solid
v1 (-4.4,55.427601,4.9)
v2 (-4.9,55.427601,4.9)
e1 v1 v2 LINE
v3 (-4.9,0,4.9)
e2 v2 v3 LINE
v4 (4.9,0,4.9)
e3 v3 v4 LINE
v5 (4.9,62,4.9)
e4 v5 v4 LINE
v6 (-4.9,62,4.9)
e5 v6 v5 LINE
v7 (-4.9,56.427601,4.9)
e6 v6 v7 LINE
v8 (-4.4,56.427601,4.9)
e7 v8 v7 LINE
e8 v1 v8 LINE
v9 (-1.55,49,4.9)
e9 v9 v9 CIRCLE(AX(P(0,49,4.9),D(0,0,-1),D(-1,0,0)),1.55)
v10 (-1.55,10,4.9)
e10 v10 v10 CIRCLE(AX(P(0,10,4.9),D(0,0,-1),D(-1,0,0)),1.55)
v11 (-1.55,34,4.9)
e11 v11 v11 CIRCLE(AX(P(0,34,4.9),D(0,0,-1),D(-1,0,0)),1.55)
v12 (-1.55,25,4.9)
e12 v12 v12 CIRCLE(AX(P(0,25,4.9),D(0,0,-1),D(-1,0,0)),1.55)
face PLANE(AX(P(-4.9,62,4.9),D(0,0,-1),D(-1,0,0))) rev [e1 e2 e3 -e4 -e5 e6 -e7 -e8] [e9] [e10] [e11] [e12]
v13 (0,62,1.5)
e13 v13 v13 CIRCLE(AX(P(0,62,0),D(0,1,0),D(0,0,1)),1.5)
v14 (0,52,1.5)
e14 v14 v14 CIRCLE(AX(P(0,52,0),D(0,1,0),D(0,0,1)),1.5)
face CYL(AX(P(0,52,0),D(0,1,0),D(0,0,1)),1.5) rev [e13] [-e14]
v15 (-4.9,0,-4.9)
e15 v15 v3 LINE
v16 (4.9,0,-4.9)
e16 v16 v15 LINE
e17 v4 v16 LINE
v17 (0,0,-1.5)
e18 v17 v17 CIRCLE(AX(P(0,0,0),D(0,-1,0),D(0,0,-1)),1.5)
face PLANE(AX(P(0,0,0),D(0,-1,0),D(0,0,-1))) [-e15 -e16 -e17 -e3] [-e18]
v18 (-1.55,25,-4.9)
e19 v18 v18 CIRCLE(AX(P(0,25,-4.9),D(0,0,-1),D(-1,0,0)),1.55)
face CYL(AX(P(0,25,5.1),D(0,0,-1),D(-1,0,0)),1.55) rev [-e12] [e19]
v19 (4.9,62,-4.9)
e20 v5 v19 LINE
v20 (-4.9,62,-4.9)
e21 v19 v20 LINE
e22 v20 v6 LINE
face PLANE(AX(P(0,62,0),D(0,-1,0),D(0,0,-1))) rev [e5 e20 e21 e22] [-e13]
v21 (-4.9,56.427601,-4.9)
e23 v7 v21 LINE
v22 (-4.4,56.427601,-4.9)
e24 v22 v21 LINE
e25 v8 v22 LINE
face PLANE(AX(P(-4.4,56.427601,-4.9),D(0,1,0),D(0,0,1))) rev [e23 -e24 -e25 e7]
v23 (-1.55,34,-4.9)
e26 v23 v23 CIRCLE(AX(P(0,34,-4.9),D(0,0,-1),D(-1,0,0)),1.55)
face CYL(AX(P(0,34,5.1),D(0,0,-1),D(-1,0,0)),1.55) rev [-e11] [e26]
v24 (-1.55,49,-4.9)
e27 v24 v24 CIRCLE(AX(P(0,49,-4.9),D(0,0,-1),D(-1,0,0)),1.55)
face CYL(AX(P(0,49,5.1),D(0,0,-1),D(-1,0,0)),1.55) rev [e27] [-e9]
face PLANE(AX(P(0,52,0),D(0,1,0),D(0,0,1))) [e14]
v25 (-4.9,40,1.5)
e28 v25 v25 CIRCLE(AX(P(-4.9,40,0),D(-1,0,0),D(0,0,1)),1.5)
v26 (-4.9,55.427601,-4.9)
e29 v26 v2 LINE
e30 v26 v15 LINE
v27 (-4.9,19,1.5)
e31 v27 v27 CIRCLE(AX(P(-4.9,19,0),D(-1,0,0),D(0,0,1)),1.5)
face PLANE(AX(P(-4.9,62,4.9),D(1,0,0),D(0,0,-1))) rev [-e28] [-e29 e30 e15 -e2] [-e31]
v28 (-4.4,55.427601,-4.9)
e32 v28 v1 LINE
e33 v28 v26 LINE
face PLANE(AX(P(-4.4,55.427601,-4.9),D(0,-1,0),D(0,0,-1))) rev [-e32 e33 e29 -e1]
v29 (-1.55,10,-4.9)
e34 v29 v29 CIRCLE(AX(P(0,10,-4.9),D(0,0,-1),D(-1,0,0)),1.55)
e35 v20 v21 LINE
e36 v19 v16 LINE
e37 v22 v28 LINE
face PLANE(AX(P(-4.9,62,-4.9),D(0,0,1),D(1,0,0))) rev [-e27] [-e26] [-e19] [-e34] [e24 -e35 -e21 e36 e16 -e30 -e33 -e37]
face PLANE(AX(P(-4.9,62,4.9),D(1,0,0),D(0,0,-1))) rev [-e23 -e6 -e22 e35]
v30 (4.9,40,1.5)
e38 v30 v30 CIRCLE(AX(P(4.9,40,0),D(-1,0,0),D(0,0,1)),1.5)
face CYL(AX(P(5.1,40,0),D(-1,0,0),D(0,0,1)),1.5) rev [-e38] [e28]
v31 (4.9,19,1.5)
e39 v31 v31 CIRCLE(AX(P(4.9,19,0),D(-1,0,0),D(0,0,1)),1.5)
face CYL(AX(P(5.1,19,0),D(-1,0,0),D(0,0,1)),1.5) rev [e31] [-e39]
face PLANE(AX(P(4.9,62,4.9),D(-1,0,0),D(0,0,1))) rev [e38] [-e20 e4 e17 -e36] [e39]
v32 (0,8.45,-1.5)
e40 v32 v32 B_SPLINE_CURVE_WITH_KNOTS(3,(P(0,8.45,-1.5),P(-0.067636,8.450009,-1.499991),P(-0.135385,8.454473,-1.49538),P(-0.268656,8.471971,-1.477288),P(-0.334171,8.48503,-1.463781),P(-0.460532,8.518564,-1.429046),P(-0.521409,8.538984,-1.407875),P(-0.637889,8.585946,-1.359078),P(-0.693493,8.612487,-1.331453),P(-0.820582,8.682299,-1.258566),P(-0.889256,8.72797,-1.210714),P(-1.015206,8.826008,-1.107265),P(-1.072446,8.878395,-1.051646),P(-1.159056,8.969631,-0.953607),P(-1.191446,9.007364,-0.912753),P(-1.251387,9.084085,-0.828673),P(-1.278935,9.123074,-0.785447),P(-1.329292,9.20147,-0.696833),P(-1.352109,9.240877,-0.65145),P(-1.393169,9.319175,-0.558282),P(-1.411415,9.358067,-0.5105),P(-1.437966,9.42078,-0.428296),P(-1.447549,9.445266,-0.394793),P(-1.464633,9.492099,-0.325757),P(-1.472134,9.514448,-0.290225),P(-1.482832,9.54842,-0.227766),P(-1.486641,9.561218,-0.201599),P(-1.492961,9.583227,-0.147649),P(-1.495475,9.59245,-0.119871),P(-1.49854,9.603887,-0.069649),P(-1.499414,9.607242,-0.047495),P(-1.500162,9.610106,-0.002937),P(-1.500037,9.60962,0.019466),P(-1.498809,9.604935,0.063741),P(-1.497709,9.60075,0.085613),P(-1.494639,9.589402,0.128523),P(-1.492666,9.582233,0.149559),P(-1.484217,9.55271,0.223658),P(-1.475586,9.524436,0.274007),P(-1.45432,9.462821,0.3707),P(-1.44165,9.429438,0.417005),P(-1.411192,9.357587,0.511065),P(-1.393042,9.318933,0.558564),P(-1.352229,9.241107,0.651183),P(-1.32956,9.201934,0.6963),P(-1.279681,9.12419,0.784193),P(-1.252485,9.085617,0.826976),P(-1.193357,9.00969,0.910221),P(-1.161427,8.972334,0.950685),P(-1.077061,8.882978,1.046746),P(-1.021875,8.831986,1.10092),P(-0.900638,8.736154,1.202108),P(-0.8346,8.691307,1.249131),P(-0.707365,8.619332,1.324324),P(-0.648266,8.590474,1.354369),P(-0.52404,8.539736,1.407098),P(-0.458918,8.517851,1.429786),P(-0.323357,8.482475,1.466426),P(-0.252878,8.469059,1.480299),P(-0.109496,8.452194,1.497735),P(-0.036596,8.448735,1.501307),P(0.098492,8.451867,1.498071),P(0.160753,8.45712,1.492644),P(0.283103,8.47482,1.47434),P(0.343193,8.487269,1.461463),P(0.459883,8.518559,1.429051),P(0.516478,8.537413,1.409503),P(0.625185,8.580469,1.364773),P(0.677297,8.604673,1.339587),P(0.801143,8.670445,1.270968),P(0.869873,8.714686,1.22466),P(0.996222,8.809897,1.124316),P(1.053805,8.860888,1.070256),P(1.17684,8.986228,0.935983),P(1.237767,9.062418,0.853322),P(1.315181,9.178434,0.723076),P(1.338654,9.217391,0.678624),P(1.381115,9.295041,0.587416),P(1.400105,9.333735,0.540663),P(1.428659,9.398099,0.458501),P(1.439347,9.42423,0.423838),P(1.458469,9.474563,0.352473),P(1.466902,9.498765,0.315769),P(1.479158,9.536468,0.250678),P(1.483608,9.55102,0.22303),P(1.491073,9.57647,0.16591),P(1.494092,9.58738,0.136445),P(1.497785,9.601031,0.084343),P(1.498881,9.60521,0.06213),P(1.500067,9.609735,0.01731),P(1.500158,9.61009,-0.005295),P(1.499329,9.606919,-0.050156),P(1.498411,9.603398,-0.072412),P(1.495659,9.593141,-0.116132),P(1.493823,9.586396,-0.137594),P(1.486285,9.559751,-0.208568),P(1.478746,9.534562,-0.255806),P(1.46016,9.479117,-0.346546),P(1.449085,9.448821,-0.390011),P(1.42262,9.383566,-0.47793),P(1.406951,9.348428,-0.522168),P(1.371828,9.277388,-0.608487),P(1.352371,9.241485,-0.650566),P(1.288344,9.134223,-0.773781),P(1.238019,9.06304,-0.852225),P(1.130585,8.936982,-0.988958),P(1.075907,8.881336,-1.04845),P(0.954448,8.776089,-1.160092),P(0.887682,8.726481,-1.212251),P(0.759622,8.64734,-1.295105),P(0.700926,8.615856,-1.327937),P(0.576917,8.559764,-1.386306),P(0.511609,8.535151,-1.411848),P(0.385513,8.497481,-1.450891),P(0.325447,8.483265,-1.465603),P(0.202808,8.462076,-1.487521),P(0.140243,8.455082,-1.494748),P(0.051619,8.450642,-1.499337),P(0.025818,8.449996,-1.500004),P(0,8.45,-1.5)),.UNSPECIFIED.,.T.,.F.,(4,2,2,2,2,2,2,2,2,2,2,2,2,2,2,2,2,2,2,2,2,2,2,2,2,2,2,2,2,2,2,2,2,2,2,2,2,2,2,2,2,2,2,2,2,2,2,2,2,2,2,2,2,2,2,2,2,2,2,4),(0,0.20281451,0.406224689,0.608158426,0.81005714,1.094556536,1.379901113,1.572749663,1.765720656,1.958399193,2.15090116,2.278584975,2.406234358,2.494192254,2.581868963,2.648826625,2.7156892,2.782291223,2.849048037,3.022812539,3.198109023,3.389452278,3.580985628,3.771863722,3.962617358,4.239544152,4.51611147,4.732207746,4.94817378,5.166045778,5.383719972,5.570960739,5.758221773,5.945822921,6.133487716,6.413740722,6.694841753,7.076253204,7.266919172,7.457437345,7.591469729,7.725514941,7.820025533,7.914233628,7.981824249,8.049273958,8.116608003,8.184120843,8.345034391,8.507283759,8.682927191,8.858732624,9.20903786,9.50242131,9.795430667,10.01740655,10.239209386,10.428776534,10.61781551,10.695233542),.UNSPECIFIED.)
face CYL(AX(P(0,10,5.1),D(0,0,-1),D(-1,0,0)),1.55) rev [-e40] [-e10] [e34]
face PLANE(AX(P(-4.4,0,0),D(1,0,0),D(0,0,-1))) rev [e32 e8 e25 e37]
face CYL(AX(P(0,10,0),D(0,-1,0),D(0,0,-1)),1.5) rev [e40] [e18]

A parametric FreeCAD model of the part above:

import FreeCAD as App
import Part
import Sketcher
Q = App.Units.Quantity

doc = App.newDocument("Part")
body = doc.addObject("PartDesign::Body", "Body")

sketch1 = doc.addObject("Sketcher::SketchObject", "Sketch")
body.addObject(sketch1)
sketch1.AttachmentSupport = (doc.XZ_Plane, [""])
sketch1.MapMode = "FlatFace"
sketch1.addGeometry([
    Part.LineSegment(App.Vector(-5, -5, 0), App.Vector(-5, 5, 0)),
    Part.LineSegment(App.Vector(-5, 5, 0), App.Vector(5, 5, 0)),
    Part.LineSegment(App.Vector(5, 5, 0), App.Vector(5, -5, 0)),
    Part.LineSegment(App.Vector(5, -5, 0), App.Vector(-5, -5, 0)),
], False)
sketch1.addConstraint([
    Sketcher.Constraint("Coincident", 0, 2, 1, 1),
    Sketcher.Constraint("Coincident", 1, 2, 2, 1),
    Sketcher.Constraint("Coincident", 2, 2, 3, 1),
    Sketcher.Constraint("Coincident", 3, 2, 0, 1),
    Sketcher.Constraint("Vertical", 0),
    Sketcher.Constraint("Horizontal", 1),
    Sketcher.Constraint("Vertical", 2),
    Sketcher.Constraint("Horizontal", 3),
    Sketcher.Constraint("Symmetric", 0, 2, 2, 2, -1, 1),
    Sketcher.Constraint("Equal", 3, 0),
    Sketcher.Constraint("DistanceX", 1, 1, 1, 2, Q("9.8 mm")),
])
pad1 = doc.addObject("PartDesign::Pad", "Pad")
body.addObject(pad1)
pad1.Profile = sketch1
pad1.Length = 62
pad1.Reversed = True

sketch2 = doc.addObject("Sketcher::SketchObject", "Sketch001")
body.addObject(sketch2)
sketch2.AttachmentSupport = (doc.XZ_Plane, [""])
sketch2.MapMode = "FlatFace"
sketch2.addGeometry(Part.Circle(App.Vector(0, 0, 0), App.Vector(0, 0, 1), 1.5), False)
sketch2.addConstraint([
    Sketcher.Constraint("Coincident", 0, 3, -1, 1),
    Sketcher.Constraint("Diameter", 0, Q("3 mm")),
])
pocket1 = doc.addObject("PartDesign::Pocket", "Pocket")
body.addObject(pocket1)
pocket1.Profile = sketch2
pocket1.Length = 10

sketch3 = doc.addObject("Sketcher::SketchObject", "Sketch002")
body.addObject(sketch3)
sketch3.AttachmentSupport = (doc.XZ_Plane, [""])
sketch3.MapMode = "FlatFace"
sketch3.AttachmentOffset = App.Placement(App.Vector(0, 0, -52), App.Rotation())
sketch3.addGeometry(Part.Circle(App.Vector(0, 0, 0), App.Vector(0, 0, 1), 1.5), False)
sketch3.addConstraint([
    Sketcher.Constraint("Coincident", 0, 3, -1, 1),
    Sketcher.Constraint("Diameter", 0, Q("3 mm")),
])
pocket2 = doc.addObject("PartDesign::Pocket", "Pocket001")
body.addObject(pocket2)
pocket2.Profile = sketch3
pocket2.Length = 10

sketch4 = doc.addObject("Sketcher::SketchObject", "Sketch003")
body.addObject(sketch4)
sketch4.AttachmentSupport = (doc.XY_Plane, [""])
sketch4.MapMode = "FlatFace"
sketch4.AttachmentOffset = App.Placement(App.Vector(0, 0, -4.9), App.Rotation())
sketch4.addGeometry([
    Part.Circle(App.Vector(0, 10, 0), App.Vector(0, 0, 1), 1.6),
    Part.Circle(App.Vector(0, 49, 0), App.Vector(0, 0, 1), 1.6),
    Part.Circle(App.Vector(0, 34, 0), App.Vector(0, 0, 1), 1.6),
    Part.Circle(App.Vector(0, 25, 0), App.Vector(0, 0, 1), 1.6),
], False)
sketch4.addConstraint([
    Sketcher.Constraint("Equal", 0, 1),
    Sketcher.Constraint("Equal", 1, 2),
    Sketcher.Constraint("Equal", 2, 3),
    Sketcher.Constraint("PointOnObject", 0, 3, -2),
    Sketcher.Constraint("PointOnObject", 1, 3, -2),
    Sketcher.Constraint("PointOnObject", 2, 3, -2),
    Sketcher.Constraint("PointOnObject", 3, 3, -2),
    Sketcher.Constraint("Diameter", 0, Q("3.1 mm")),
    Sketcher.Constraint("DistanceY", -1, 1, 0, 3, Q("10 mm")),
    Sketcher.Constraint("DistanceY", -1, 1, 1, 3, Q("49 mm")),
    Sketcher.Constraint("DistanceY", -1, 1, 2, 3, Q("34 mm")),
    Sketcher.Constraint("DistanceY", -1, 1, 3, 3, Q("25 mm")),
])
pocket3 = doc.addObject("PartDesign::Pocket", "Pocket002")
body.addObject(pocket3)
pocket3.Profile = sketch4
pocket3.Length = 10
pocket3.Reversed = True

sketch5 = doc.addObject("Sketcher::SketchObject", "Sketch004")
body.addObject(sketch5)
sketch5.AttachmentSupport = (doc.YZ_Plane, [""])
sketch5.MapMode = "FlatFace"
sketch5.AttachmentOffset = App.Placement(App.Vector(0, 0, -4.9), App.Rotation())
sketch5.addGeometry([
    Part.Circle(App.Vector(40, 0, 0), App.Vector(0, 0, 1), 1.5),
    Part.Circle(App.Vector(19, 0, 0), App.Vector(0, 0, 1), 1.5),
], False)
sketch5.addConstraint([
    Sketcher.Constraint("Equal", 0, 1),
    Sketcher.Constraint("PointOnObject", 0, 3, -1),
    Sketcher.Constraint("PointOnObject", 1, 3, -1),
    Sketcher.Constraint("Diameter", 0, Q("3 mm")),
    Sketcher.Constraint("DistanceX", -1, 1, 0, 3, Q("40 mm")),
    Sketcher.Constraint("DistanceX", -1, 1, 1, 3, Q("19 mm")),
])
pocket4 = doc.addObject("PartDesign::Pocket", "Pocket003")
body.addObject(pocket4)
pocket4.Profile = sketch5
pocket4.Length = 10
pocket4.Reversed = True

sketch6 = doc.addObject("Sketcher::SketchObject", "Sketch005")
body.addObject(sketch6)
sketch6.AttachmentSupport = (doc.YZ_Plane, [""])
sketch6.MapMode = "FlatFace"
sketch6.AttachmentOffset = App.Placement(App.Vector(0, 0, -4.9), App.Rotation())
sketch6.addGeometry([
    Part.LineSegment(App.Vector(56.4, -4.9, 0), App.Vector(55.4, -4.9, 0)),
    Part.LineSegment(App.Vector(55.4, -4.9, 0), App.Vector(55.4, 4.9, 0)),
    Part.LineSegment(App.Vector(55.4, 4.9, 0), App.Vector(56.4, 4.9, 0)),
    Part.LineSegment(App.Vector(56.4, 4.9, 0), App.Vector(56.4, -4.9, 0)),
], False)
sketch6.addConstraint([
    Sketcher.Constraint("Coincident", 0, 2, 1, 1),
    Sketcher.Constraint("Coincident", 1, 2, 2, 1),
    Sketcher.Constraint("Coincident", 2, 2, 3, 1),
    Sketcher.Constraint("Coincident", 3, 2, 0, 1),
    Sketcher.Constraint("Horizontal", 0),
    Sketcher.Constraint("Vertical", 1),
    Sketcher.Constraint("Horizontal", 2),
    Sketcher.Constraint("Vertical", 3),
    Sketcher.Constraint("DistanceX", 0, 2, 0, 1, Q("1 mm")),
    Sketcher.Constraint("DistanceY", 1, 1, 1, 2, Q("9.8 mm")),
    Sketcher.Constraint("DistanceY", 0, 2, -1, 1, Q("4.9 mm")),
    Sketcher.Constraint("DistanceX", -1, 1, 0, 2, Q("55.427601 mm")),
])
pocket5 = doc.addObject("PartDesign::Pocket", "Pocket004")
body.addObject(pocket5)
pocket5.Profile = sketch6
pocket5.Length = 0.5
pocket5.Reversed = True

doc.recompute()
